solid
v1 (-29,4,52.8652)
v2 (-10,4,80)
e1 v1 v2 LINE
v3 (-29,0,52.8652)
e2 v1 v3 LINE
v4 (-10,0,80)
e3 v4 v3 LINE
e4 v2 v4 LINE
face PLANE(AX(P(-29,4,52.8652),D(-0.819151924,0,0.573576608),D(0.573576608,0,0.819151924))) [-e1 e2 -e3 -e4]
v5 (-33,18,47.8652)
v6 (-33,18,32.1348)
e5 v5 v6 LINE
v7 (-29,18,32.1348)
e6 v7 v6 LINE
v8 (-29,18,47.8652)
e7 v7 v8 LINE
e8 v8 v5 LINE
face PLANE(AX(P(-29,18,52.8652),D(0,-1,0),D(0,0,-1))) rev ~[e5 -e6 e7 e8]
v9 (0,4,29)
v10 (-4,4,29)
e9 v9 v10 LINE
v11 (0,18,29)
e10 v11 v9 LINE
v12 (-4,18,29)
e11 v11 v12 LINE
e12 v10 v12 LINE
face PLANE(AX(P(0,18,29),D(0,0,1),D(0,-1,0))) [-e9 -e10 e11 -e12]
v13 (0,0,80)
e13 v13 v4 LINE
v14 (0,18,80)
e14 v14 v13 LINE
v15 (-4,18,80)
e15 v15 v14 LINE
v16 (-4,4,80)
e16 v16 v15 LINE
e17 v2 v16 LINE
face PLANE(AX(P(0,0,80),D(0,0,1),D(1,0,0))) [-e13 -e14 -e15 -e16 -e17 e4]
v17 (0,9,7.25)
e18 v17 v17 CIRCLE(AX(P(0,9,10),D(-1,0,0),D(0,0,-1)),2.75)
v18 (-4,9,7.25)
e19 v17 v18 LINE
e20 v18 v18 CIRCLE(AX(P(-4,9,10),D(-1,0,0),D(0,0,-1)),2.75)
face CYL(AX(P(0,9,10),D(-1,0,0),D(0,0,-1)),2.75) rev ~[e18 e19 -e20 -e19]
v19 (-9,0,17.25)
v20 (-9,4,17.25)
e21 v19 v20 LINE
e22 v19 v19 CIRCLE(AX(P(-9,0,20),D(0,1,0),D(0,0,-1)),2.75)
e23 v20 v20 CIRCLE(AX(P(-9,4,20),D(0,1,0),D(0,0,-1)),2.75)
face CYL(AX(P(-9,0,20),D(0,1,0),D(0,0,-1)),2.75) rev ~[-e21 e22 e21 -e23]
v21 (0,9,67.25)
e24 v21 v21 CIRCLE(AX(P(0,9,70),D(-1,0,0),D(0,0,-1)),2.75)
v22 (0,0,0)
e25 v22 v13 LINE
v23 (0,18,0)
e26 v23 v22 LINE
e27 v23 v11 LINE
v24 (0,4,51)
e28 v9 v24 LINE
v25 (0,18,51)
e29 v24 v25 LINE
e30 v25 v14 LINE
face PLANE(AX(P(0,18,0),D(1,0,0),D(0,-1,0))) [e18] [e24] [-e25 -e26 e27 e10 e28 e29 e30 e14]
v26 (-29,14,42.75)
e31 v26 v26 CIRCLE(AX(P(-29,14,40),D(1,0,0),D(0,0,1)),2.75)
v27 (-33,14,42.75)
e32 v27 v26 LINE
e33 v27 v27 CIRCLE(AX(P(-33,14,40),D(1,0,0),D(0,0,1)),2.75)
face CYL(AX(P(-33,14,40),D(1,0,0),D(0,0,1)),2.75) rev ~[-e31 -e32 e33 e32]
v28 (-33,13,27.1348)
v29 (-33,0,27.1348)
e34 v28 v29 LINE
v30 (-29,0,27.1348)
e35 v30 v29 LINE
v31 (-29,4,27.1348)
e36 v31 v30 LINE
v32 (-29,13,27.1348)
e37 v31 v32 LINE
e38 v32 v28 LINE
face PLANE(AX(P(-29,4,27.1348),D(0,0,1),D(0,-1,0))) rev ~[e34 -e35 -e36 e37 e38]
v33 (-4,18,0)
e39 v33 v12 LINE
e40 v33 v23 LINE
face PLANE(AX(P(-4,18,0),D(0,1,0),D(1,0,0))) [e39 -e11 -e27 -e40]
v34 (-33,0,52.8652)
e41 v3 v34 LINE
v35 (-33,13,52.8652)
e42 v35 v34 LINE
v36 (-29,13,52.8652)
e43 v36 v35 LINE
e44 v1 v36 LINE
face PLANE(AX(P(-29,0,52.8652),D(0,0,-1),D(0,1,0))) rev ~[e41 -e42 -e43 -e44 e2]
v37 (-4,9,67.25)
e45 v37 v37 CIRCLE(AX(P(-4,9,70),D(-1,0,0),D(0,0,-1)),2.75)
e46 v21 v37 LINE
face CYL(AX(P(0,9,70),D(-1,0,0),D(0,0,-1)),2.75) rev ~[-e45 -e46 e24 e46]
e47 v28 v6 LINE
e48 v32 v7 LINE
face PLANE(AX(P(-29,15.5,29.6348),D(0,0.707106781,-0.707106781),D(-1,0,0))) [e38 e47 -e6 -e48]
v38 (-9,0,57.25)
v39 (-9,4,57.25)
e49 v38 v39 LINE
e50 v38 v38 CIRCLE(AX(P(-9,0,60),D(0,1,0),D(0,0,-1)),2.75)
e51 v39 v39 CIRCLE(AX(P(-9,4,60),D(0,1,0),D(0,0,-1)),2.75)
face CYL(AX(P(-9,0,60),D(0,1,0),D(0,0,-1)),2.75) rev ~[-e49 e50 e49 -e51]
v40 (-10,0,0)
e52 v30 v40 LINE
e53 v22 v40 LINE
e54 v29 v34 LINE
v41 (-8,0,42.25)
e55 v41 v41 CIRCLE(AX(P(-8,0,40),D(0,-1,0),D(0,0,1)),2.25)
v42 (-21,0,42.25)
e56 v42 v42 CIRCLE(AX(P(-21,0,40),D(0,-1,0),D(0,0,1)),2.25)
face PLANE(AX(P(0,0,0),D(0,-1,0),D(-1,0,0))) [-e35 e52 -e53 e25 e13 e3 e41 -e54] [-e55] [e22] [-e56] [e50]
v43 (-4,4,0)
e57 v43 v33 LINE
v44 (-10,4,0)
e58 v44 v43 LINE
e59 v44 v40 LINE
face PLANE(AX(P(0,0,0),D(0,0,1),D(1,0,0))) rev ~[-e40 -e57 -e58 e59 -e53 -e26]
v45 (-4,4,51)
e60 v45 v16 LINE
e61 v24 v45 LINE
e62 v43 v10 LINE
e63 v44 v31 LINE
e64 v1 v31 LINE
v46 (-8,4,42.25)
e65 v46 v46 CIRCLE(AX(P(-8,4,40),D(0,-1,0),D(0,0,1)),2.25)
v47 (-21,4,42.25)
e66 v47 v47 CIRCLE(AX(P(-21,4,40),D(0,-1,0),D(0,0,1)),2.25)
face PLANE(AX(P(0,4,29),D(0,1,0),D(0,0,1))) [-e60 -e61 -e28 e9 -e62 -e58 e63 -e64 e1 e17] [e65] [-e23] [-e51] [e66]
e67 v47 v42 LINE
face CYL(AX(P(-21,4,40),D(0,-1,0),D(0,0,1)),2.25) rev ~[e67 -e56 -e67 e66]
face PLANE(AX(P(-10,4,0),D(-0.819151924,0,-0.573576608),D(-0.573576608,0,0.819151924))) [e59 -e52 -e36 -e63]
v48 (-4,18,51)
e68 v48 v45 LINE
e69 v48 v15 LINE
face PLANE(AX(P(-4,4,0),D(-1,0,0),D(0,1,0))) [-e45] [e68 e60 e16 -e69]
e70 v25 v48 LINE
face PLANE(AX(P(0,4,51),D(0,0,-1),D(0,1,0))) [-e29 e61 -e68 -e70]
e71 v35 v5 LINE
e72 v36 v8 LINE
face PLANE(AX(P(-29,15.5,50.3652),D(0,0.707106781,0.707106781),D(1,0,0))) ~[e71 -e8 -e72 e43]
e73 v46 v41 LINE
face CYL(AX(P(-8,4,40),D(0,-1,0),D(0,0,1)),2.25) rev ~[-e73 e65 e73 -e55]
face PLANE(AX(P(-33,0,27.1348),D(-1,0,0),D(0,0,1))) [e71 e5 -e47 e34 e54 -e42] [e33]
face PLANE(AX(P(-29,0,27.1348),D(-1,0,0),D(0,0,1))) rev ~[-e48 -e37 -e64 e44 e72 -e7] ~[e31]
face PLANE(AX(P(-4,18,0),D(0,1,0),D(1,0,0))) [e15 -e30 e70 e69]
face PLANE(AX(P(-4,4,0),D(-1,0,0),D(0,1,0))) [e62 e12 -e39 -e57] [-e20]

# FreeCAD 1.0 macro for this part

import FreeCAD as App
import Part
import Sketcher
from FreeCAD import Vector
Q = App.Units.Quantity


def edges_at(feature, points):
    """Names of the edges that pass closest to the given points."""
    edges = feature.Shape.Edges
    near = lambda p: min(range(len(edges)), key=lambda i: edges[i].distToShape(Part.Vertex(*p))[0])
    return sorted({f"Edge{near(p) + 1}" for p in points})

doc = App.newDocument("Part")
body = doc.addObject("PartDesign::Body", "Body")

# Sketch on XY plane
sketch1 = doc.addObject("Sketcher::SketchObject", "Sketch")
body.addObject(sketch1)
sketch1.AttachmentSupport = (doc.XY_Plane, [""])
sketch1.MapMode = "FlatFace"
sketch1.addGeometry([
    Part.LineSegment(Vector(-29, 0, 0), Vector(0, 0, 0)),  # 0
    Part.LineSegment(Vector(0, 0, 0), Vector(0, 18, 0)),  # 1
    Part.LineSegment(Vector(0, 18, 0), Vector(-4, 18, 0)),  # 2
    Part.LineSegment(Vector(-4, 18, 0), Vector(-4, 4, 0)),  # 3
    Part.LineSegment(Vector(-4, 4, 0), Vector(-29, 4, 0)),  # 4
    Part.LineSegment(Vector(-29, 4, 0), Vector(-29, 0, 0)),  # 5
], False)
sketch1.addConstraint([
    Sketcher.Constraint("Coincident", 0, 2, 1, 1),
    Sketcher.Constraint("Coincident", 1, 2, 2, 1),
    Sketcher.Constraint("Coincident", 2, 2, 3, 1),
    Sketcher.Constraint("Coincident", 3, 2, 4, 1),
    Sketcher.Constraint("Coincident", 4, 2, 5, 1),
    Sketcher.Constraint("Coincident", 5, 2, 0, 1),
    Sketcher.Constraint("Horizontal", 0),
    Sketcher.Constraint("Vertical", 1),
    Sketcher.Constraint("Horizontal", 2),
    Sketcher.Constraint("Vertical", 3),
    Sketcher.Constraint("Horizontal", 4),
    Sketcher.Constraint("Vertical", 5),
    Sketcher.Constraint("Coincident", 0, 2, -1, 1),
    Sketcher.Constraint("Equal", 2, 5),
    Sketcher.Constraint("DistanceX", 0, 1, 0, 2, 29.0),
    Sketcher.Constraint("DistanceX", 2, 2, 2, 1, 4.0),
    Sketcher.Constraint("DistanceY", 1, 1, 1, 2, 18.0),
])
pad1 = doc.addObject("PartDesign::Pad", "Pad")
body.addObject(pad1)
pad1.Profile = sketch1
pad1.Length = 80

# Sketch on YZ plane
sketch2 = doc.addObject("Sketcher::SketchObject", "Sketch001")
body.addObject(sketch2)
sketch2.AttachmentSupport = (doc.YZ_Plane, [""])
sketch2.MapMode = "FlatFace"
sketch2.addGeometry([
    Part.LineSegment(Vector(4, 51, 0), Vector(4, 29, 0)),
    Part.LineSegment(Vector(4, 29, 0), Vector(18, 29, 0)),
    Part.LineSegment(Vector(18, 29, 0), Vector(18, 51, 0)),
    Part.LineSegment(Vector(18, 51, 0), Vector(4, 51, 0)),
], False)
sketch2.addConstraint([
    Sketcher.Constraint("Coincident", 0, 2, 1, 1),
    Sketcher.Constraint("Coincident", 1, 2, 2, 1),
    Sketcher.Constraint("Coincident", 2, 2, 3, 1),
    Sketcher.Constraint("Coincident", 3, 2, 0, 1),
    Sketcher.Constraint("Vertical", 0),
    Sketcher.Constraint("Horizontal", 1),
    Sketcher.Constraint("Vertical", 2),
    Sketcher.Constraint("Horizontal", 3),
    Sketcher.Constraint("DistanceY", 0, 2, 0, 1, 22.0),
    Sketcher.Constraint("DistanceX", 1, 1, 1, 2, 14.0),
    Sketcher.Constraint("DistanceX", -1, 1, 0, 2, 4.0),
    Sketcher.Constraint("DistanceY", -1, 1, 0, 2, 29.0),
])
pocket1 = doc.addObject("PartDesign::Pocket", "Pocket")
body.addObject(pocket1)
pocket1.Profile = sketch2
pocket1.Type = "ThroughAll"

# Sketch on YZ plane
sketch3 = doc.addObject("Sketcher::SketchObject", "Sketch002")
body.addObject(sketch3)
sketch3.AttachmentSupport = (doc.YZ_Plane, [""])
sketch3.MapMode = "FlatFace"
sketch3.addGeometry([
    Part.Circle(Vector(9, 70, 0), Vector(0, 0, 1), 2.8),
    Part.Circle(Vector(9, 10, 0), Vector(0, 0, 1), 2.8),
], False)
sketch3.addConstraint([
    Sketcher.Constraint("Equal", 0, 1),
    Sketcher.Constraint("Vertical", 0, 3, 1, 3),
    Sketcher.Constraint("Diameter", 0, 5.5),
    Sketcher.Constraint("DistanceX", -1, 1, 0, 3, 9.0),
    Sketcher.Constraint("DistanceY", -1, 1, 0, 3, 70.0),
    Sketcher.Constraint("DistanceY", -1, 1, 1, 3, 10.0),
])
doc.recompute()
hole = doc.addObject("PartDesign::Hole", "Hole")
body.addObject(hole)
hole.Profile = sketch3
hole.ThreadType = "None"
hole.Diameter = 5.5
hole.DepthType = "ThroughAll"

# Sketch on XZ plane
sketch4 = doc.addObject("Sketcher::SketchObject", "Sketch003")
body.addObject(sketch4)
sketch4.AttachmentSupport = (doc.XZ_Plane, [""])
sketch4.MapMode = "FlatFace"
sketch4.addGeometry([
    Part.Circle(Vector(-9, 60, 0), Vector(0, 0, 1), 2.8),
    Part.Circle(Vector(-9, 20, 0), Vector(0, 0, 1), 2.8),
], False)
sketch4.addConstraint([
    Sketcher.Constraint("Equal", 0, 1),
    Sketcher.Constraint("Vertical", 0, 3, 1, 3),
    Sketcher.Constraint("Diameter", 0, 5.5),
    Sketcher.Constraint("DistanceX", 0, 3, -1, 1, 9.0),
    Sketcher.Constraint("DistanceY", -1, 1, 0, 3, 60.0),
    Sketcher.Constraint("DistanceY", -1, 1, 1, 3, 20.0),
])
doc.recompute()
hole2 = doc.addObject("PartDesign::Hole", "Hole001")
body.addObject(hole2)
hole2.Profile = sketch4
hole2.ThreadType = "None"
hole2.Diameter = 5.5
hole2.DepthType = "ThroughAll"

# Sketch on XZ plane
sketch5 = doc.addObject("Sketcher::SketchObject", "Sketch004")
body.addObject(sketch5)
sketch5.AttachmentSupport = (doc.XZ_Plane, [""])
sketch5.MapMode = "FlatFace"
sketch5.AttachmentOffset = App.Placement(Vector(0, 0, -4), App.Rotation())
sketch5.addGeometry([
    Part.LineSegment(Vector(-10, 0, 0), Vector(-29, 0, 0)),  # 0
    Part.LineSegment(Vector(-29, 0, 0), Vector(-29, 27, 0)),  # 1
    Part.LineSegment(Vector(-29, 27, 0), Vector(-10, 0, 0)),  # 2
    Part.LineSegment(Vector(-10, 80, 0), Vector(-29, 53, 0)),  # 3
    Part.LineSegment(Vector(-29, 53, 0), Vector(-29, 80, 0)),  # 4
    Part.LineSegment(Vector(-29, 80, 0), Vector(-10, 80, 0)),  # 5
], False)
sketch5.addConstraint([
    Sketcher.Constraint("Coincident", 0, 2, 1, 1),
    Sketcher.Constraint("Coincident", 1, 2, 2, 1),
    Sketcher.Constraint("Coincident", 2, 2, 0, 1),
    Sketcher.Constraint("Coincident", 3, 2, 4, 1),
    Sketcher.Constraint("Coincident", 4, 2, 5, 1),
    Sketcher.Constraint("Coincident", 5, 2, 3, 1),
    Sketcher.Constraint("Horizontal", 0),
    Sketcher.Constraint("Vertical", 1),
    Sketcher.Constraint("Vertical", 4),
    Sketcher.Constraint("Horizontal", 5),
    Sketcher.Constraint("PointOnObject", 0, 2, -1),
    Sketcher.Constraint("Vertical", 1, 2, 3, 2),
    Sketcher.Constraint("Vertical", 2, 2, 5, 2),
    Sketcher.Constraint("Equal", 1, 4),
    Sketcher.Constraint("Angle", 2, Q("-55 deg")),
    Sketcher.Constraint("DistanceX", 2, 2, -1, 1, 10.0),
    Sketcher.Constraint("DistanceX", 0, 2, 0, 1, 19.0),
    Sketcher.Constraint("DistanceY", -1, 1, 4, 2, 80.0),
])
pocket2 = doc.addObject("PartDesign::Pocket", "Pocket001")
body.addObject(pocket2)
pocket2.Profile = sketch5
pocket2.Type = "ThroughAll"
pocket2.Reversed = True

# Sketch on XZ plane
sketch6 = doc.addObject("Sketcher::SketchObject", "Sketch005")
body.addObject(sketch6)
sketch6.AttachmentSupport = (doc.XZ_Plane, [""])
sketch6.MapMode = "FlatFace"
sketch6.AttachmentOffset = App.Placement(Vector(0, 0, -4), App.Rotation())
sketch6.addGeometry([
    Part.Circle(Vector(-8, 40, 0), Vector(0, 0, 1), 2.2),
    Part.Circle(Vector(-21, 40, 0), Vector(0, 0, 1), 2.2),
], False)
sketch6.addConstraint([
    Sketcher.Constraint("Equal", 0, 1),
    Sketcher.Constraint("Horizontal", 0, 3, 1, 3),
    Sketcher.Constraint("Diameter", 0, 4.5),
    Sketcher.Constraint("DistanceX", 0, 3, -1, 1, 8.0),
    Sketcher.Constraint("DistanceY", -1, 1, 0, 3, 40.0),
    Sketcher.Constraint("DistanceX", 1, 3, -1, 1, 21.0),
])
doc.recompute()
hole3 = doc.addObject("PartDesign::Hole", "Hole002")
body.addObject(hole3)
hole3.Profile = sketch6
hole3.ThreadType = "None"
hole3.Diameter = 4.5
hole3.DepthType = "ThroughAll"
hole3.Reversed = True

# Sketch on YZ plane
sketch7 = doc.addObject("Sketcher::SketchObject", "Sketch006")
body.addObject(sketch7)
sketch7.AttachmentSupport = (doc.YZ_Plane, [""])
sketch7.MapMode = "FlatFace"
sketch7.AttachmentOffset = App.Placement(Vector(0, 0, -29), App.Rotation())
sketch7.addGeometry([
    Part.LineSegment(Vector(0, 53, 0), Vector(18, 53, 0)),
    Part.LineSegment(Vector(18, 53, 0), Vector(18, 27, 0)),
    Part.LineSegment(Vector(18, 27, 0), Vector(0, 27, 0)),
    Part.LineSegment(Vector(0, 27, 0), Vector(0, 53, 0)),
], False)
sketch7.addConstraint([
    Sketcher.Constraint("Coincident", 0, 2, 1, 1),
    Sketcher.Constraint("Coincident", 1, 2, 2, 1),
    Sketcher.Constraint("Coincident", 2, 2, 3, 1),
    Sketcher.Constraint("Coincident", 3, 2, 0, 1),
    Sketcher.Constraint("Horizontal", 0),
    Sketcher.Constraint("Vertical", 1),
    Sketcher.Constraint("Horizontal", 2),
    Sketcher.Constraint("Vertical", 3),
    Sketcher.Constraint("PointOnObject", 2, 2, -2),
    Sketcher.Constraint("DistanceX", 0, 1, 0, 2, 18.0),
    Sketcher.Constraint("DistanceY", 1, 2, 1, 1, 25.7304),
    Sketcher.Constraint("DistanceY", -1, 1, 0, 2, 52.8652),
])
pad2 = doc.addObject("PartDesign::Pad", "Pad001")
body.addObject(pad2)
pad2.Profile = sketch7
pad2.Length = 4
pad2.Reversed = True

# Sketch on YZ plane
sketch8 = doc.addObject("Sketcher::SketchObject", "Sketch007")
body.addObject(sketch8)
sketch8.AttachmentSupport = (doc.YZ_Plane, [""])
sketch8.MapMode = "FlatFace"
sketch8.AttachmentOffset = App.Placement(Vector(0, 0, -33), App.Rotation())
sketch8.addGeometry(Part.Circle(Vector(14, 40, 0), Vector(0, 0, 1), 2.8), False)
sketch8.addConstraint([
    Sketcher.Constraint("Diameter", 0, 5.5),
    Sketcher.Constraint("DistanceX", -1, 1, 0, 3, 14.0),
    Sketcher.Constraint("DistanceY", -1, 1, 0, 3, 40.0),
])
doc.recompute()
hole4 = doc.addObject("PartDesign::Hole", "Hole003")
body.addObject(hole4)
hole4.Profile = sketch8
hole4.ThreadType = "None"
hole4.Diameter = 5.5
hole4.DepthType = "ThroughAll"
hole4.Reversed = True
doc.recompute()

chamfer = doc.addObject("PartDesign::Chamfer", "Chamfer")
body.addObject(chamfer)
chamfer.Base = (hole4, edges_at(hole4, [(-31, 18, 27.135), (-31, 18, 52.865)]))
chamfer.Size = 5

doc.recompute()
